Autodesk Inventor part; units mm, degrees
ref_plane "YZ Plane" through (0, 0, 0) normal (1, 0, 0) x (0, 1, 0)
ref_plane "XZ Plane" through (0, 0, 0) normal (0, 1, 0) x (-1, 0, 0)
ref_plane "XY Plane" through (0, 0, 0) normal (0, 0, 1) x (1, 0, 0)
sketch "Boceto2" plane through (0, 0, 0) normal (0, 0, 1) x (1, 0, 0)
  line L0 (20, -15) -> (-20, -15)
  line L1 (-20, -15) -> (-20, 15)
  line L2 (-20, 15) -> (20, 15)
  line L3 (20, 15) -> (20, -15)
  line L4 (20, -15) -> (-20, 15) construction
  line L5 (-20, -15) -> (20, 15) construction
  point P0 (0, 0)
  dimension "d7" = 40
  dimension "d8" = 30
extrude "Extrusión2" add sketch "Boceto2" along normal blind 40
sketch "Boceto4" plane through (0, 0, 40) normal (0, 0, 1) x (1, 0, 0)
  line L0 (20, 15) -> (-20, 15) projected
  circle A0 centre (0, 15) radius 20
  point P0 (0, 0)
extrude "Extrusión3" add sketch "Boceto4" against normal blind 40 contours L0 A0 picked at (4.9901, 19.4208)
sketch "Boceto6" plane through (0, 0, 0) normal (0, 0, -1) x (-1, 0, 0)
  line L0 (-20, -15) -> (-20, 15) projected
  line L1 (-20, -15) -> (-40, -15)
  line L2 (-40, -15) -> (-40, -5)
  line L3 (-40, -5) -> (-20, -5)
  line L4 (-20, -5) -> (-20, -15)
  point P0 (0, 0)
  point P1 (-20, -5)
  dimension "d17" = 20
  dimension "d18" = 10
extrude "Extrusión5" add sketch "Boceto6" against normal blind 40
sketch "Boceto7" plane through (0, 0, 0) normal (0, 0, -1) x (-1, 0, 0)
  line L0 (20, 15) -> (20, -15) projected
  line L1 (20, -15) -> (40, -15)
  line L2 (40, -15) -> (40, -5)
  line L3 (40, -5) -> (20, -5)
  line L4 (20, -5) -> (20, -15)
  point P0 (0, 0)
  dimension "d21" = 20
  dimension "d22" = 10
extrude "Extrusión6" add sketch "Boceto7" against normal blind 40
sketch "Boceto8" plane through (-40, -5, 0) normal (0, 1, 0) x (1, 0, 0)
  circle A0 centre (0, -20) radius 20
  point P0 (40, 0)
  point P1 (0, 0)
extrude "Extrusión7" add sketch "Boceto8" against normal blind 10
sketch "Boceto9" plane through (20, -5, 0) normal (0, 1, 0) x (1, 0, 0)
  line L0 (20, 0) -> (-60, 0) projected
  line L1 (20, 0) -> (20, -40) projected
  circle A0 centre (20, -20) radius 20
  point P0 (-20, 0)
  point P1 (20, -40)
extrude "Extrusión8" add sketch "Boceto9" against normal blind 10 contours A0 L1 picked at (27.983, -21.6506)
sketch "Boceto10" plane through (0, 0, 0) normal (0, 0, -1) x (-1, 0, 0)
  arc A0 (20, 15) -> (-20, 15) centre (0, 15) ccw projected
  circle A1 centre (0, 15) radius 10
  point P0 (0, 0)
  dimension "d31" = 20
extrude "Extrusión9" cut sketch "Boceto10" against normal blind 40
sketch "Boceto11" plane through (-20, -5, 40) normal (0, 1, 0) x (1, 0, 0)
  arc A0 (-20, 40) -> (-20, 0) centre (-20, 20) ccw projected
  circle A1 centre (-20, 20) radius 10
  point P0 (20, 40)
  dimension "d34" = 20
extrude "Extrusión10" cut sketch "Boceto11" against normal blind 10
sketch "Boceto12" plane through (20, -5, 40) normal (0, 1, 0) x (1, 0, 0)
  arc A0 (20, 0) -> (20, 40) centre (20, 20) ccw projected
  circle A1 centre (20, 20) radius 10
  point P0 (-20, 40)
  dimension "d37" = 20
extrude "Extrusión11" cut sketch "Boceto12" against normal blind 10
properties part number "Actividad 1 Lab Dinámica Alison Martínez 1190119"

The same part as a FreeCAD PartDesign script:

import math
import FreeCAD as App
import Part
import Sketcher

V = App.Vector


def add_polygon(sketch, points):
    """Adds a closed chain of lines whose ends are joined by coincident constraints."""
    first, n = sketch.GeometryCount, len(points)
    for a, b in zip(points, points[1:] + points[:1]):
        sketch.addGeometry(Part.LineSegment(App.Vector(*a, 0), App.Vector(*b, 0)), False)
    for i in range(n):
        sketch.addConstraint(Sketcher.Constraint("Coincident", first + i, 2, first + (i + 1) % n, 1))

doc = App.newDocument("Part")
body = doc.addObject("PartDesign::Body", "Body")

sketch1 = body.newObject("Sketcher::SketchObject", "Sketch")
sketch1.AttachmentSupport = (doc.getObject("XY_Plane"), [""])
sketch1.MapMode = "FlatFace"
add_polygon(sketch1, [(-20, -15), (20, -15), (20, 15), (-20, 15)])
sketch1.addConstraint([
    Sketcher.Constraint("Horizontal", 0),
    Sketcher.Constraint("Vertical", 1),
    Sketcher.Constraint("Horizontal", 2),
    Sketcher.Constraint("Vertical", 3),
    Sketcher.Constraint("Symmetric", 0, 2, 2, 2, -1, 1),
    Sketcher.Constraint("DistanceX", 0, 1, 0, 2, 40.0),
    Sketcher.Constraint("DistanceY", 1, 1, 1, 2, 30.0),
])
pad1 = body.newObject("PartDesign::Pad", "Pad")
pad1.Profile = sketch1
pad1.Length = 40

sketch2 = body.newObject("Sketcher::SketchObject", "Sketch001")
sketch2.AttachmentSupport = (doc.getObject("XY_Plane"), [""])
sketch2.MapMode = "FlatFace"
sketch2.AttachmentOffset = App.Placement(V(0, 0, 40), App.Rotation())
sketch2.addGeometry([
    Part.LineSegment(V(-20, 15, 0), V(20, 15, 0)),
    Part.ArcOfCircle(Part.Circle(V(0, 15, 0), V(0, 0, 1), 20), math.radians(0), math.radians(180)),
], False)
sketch2.addConstraint([
    Sketcher.Constraint("Coincident", 0, 1, 1, 2),
    Sketcher.Constraint("Coincident", 1, 1, 0, 2),
    Sketcher.Constraint("Horizontal", 0),
    Sketcher.Constraint("PointOnObject", 1, 3, -2),
    Sketcher.Constraint("Horizontal", 1, 3, 0, 1),
    Sketcher.Constraint("Radius", 1, 20.0),
    Sketcher.Constraint("DistanceY", -1, 1, 1, 3, 15.0),
])
pad2 = body.newObject("PartDesign::Pad", "Pad001")
pad2.Profile = sketch2
pad2.Length = 40
pad2.Reversed = True

sketch3 = body.newObject("Sketcher::SketchObject", "Sketch002")
sketch3.AttachmentSupport = (doc.getObject("XY_Plane"), [""])
sketch3.MapMode = "FlatFace"
add_polygon(sketch3, [(40, -15), (20, -15), (20, -5), (40, -5)])
sketch3.addConstraint([
    Sketcher.Constraint("Horizontal", 0),
    Sketcher.Constraint("Vertical", 1),
    Sketcher.Constraint("Horizontal", 2),
    Sketcher.Constraint("Vertical", 3),
    Sketcher.Constraint("DistanceX", 0, 2, 0, 1, 20.0),
    Sketcher.Constraint("DistanceY", 1, 1, 1, 2, 10.0),
    Sketcher.Constraint("DistanceX", -1, 1, 0, 2, 20.0),
    Sketcher.Constraint("DistanceY", 0, 2, -1, 1, 15.0),
])
pad3 = body.newObject("PartDesign::Pad", "Pad002")
pad3.Profile = sketch3
pad3.Length = 40

sketch4 = body.newObject("Sketcher::SketchObject", "Sketch003")
sketch4.AttachmentSupport = (doc.getObject("XY_Plane"), [""])
sketch4.MapMode = "FlatFace"
add_polygon(sketch4, [(-40, -5), (-20, -5), (-20, -15), (-40, -15)])
sketch4.addConstraint([
    Sketcher.Constraint("Horizontal", 0),
    Sketcher.Constraint("Vertical", 1),
    Sketcher.Constraint("Horizontal", 2),
    Sketcher.Constraint("Vertical", 3),
    Sketcher.Constraint("DistanceX", 0, 1, 0, 2, 20.0),
    Sketcher.Constraint("DistanceY", 1, 2, 1, 1, 10.0),
    Sketcher.Constraint("DistanceX", 0, 2, -1, 1, 20.0),
    Sketcher.Constraint("DistanceY", 0, 2, -1, 1, 5.0),
])
pad4 = body.newObject("PartDesign::Pad", "Pad003")
pad4.Profile = sketch4
pad4.Length = 40

sketch5 = body.newObject("Sketcher::SketchObject", "Sketch004")
sketch5.AttachmentSupport = (doc.getObject("XZ_Plane"), [""])
sketch5.MapMode = "FlatFace"
sketch5.AttachmentOffset = App.Placement(V(0, 0, 5), App.Rotation())
sketch5.addGeometry(Part.Circle(V(-40, 20, 0), V(0, 0, 1), 20), False)
sketch5.addConstraint([
    Sketcher.Constraint("Diameter", 0, 40.0),
    Sketcher.Constraint("DistanceX", 0, 3, -1, 1, 40.0),
    Sketcher.Constraint("DistanceY", -1, 1, 0, 3, 20.0),
])
pad5 = body.newObject("PartDesign::Pad", "Pad004")
pad5.Profile = sketch5
pad5.Length = 10

sketch6 = body.newObject("Sketcher::SketchObject", "Sketch005")
sketch6.AttachmentSupport = (doc.getObject("XZ_Plane"), [""])
sketch6.MapMode = "FlatFace"
sketch6.AttachmentOffset = App.Placement(V(0, 0, 5), App.Rotation())
sketch6.addGeometry([
    Part.ArcOfCircle(Part.Circle(V(40, 20, 0), V(0, 0, 1), 20), math.radians(-90), math.radians(90)),
    Part.LineSegment(V(40, 0, 0), V(40, 40, 0)),
], False)
sketch6.addConstraint([
    Sketcher.Constraint("Coincident", 0, 1, 1, 1),
    Sketcher.Constraint("Coincident", 1, 2, 0, 2),
    Sketcher.Constraint("Vertical", 1),
    Sketcher.Constraint("PointOnObject", 0, 1, -1),
    Sketcher.Constraint("Radius", 0, 20.0),
    Sketcher.Constraint("DistanceX", -1, 1, 0, 3, 40.0),
    Sketcher.Constraint("DistanceX", -1, 1, 0, 1, 40.0),
])
pad6 = body.newObject("PartDesign::Pad", "Pad005")
pad6.Profile = sketch6
pad6.Length = 10

sketch7 = body.newObject("Sketcher::SketchObject", "Sketch006")
sketch7.AttachmentSupport = (doc.getObject("XY_Plane"), [""])
sketch7.MapMode = "FlatFace"
sketch7.addGeometry(Part.Circle(V(0, 15, 0), V(0, 0, 1), 10), False)
sketch7.addConstraint([
    Sketcher.Constraint("PointOnObject", 0, 3, -2),
    Sketcher.Constraint("Diameter", 0, 20.0),
    Sketcher.Constraint("DistanceY", -1, 1, 0, 3, 15.0),
])
pocket1 = body.newObject("PartDesign::Pocket", "Pocket")
pocket1.Profile = sketch7
pocket1.Length = 40
pocket1.Reversed = True

sketch8 = body.newObject("Sketcher::SketchObject", "Sketch007")
sketch8.AttachmentSupport = (doc.getObject("XZ_Plane"), [""])
sketch8.MapMode = "FlatFace"
sketch8.AttachmentOffset = App.Placement(V(0, 0, 5), App.Rotation())
sketch8.addGeometry(Part.Circle(V(-40, 20, 0), V(0, 0, 1), 10), False)
sketch8.addConstraint([
    Sketcher.Constraint("Diameter", 0, 20.0),
    Sketcher.Constraint("DistanceY", -1, 1, 0, 3, 20.0),
    Sketcher.Constraint("DistanceX", 0, 3, -1, 1, 40.0),
])
pocket2 = body.newObject("PartDesign::Pocket", "Pocket001")
pocket2.Profile = sketch8
pocket2.Length = 10
pocket2.Reversed = True

sketch9 = body.newObject("Sketcher::SketchObject", "Sketch008")
sketch9.AttachmentSupport = (doc.getObject("XZ_Plane"), [""])
sketch9.MapMode = "FlatFace"
sketch9.AttachmentOffset = App.Placement(V(0, 0, 5), App.Rotation())
sketch9.addGeometry(Part.Circle(V(40, 20, 0), V(0, 0, 1), 10), False)
sketch9.addConstraint([
    Sketcher.Constraint("Diameter", 0, 20.0),
    Sketcher.Constraint("DistanceY", -1, 1, 0, 3, 20.0),
    Sketcher.Constraint("DistanceX", -1, 1, 0, 3, 40.0),
])
pocket3 = body.newObject("PartDesign::Pocket", "Pocket002")
pocket3.Profile = sketch9
pocket3.Length = 10
pocket3.Reversed = True

doc.recompute()
